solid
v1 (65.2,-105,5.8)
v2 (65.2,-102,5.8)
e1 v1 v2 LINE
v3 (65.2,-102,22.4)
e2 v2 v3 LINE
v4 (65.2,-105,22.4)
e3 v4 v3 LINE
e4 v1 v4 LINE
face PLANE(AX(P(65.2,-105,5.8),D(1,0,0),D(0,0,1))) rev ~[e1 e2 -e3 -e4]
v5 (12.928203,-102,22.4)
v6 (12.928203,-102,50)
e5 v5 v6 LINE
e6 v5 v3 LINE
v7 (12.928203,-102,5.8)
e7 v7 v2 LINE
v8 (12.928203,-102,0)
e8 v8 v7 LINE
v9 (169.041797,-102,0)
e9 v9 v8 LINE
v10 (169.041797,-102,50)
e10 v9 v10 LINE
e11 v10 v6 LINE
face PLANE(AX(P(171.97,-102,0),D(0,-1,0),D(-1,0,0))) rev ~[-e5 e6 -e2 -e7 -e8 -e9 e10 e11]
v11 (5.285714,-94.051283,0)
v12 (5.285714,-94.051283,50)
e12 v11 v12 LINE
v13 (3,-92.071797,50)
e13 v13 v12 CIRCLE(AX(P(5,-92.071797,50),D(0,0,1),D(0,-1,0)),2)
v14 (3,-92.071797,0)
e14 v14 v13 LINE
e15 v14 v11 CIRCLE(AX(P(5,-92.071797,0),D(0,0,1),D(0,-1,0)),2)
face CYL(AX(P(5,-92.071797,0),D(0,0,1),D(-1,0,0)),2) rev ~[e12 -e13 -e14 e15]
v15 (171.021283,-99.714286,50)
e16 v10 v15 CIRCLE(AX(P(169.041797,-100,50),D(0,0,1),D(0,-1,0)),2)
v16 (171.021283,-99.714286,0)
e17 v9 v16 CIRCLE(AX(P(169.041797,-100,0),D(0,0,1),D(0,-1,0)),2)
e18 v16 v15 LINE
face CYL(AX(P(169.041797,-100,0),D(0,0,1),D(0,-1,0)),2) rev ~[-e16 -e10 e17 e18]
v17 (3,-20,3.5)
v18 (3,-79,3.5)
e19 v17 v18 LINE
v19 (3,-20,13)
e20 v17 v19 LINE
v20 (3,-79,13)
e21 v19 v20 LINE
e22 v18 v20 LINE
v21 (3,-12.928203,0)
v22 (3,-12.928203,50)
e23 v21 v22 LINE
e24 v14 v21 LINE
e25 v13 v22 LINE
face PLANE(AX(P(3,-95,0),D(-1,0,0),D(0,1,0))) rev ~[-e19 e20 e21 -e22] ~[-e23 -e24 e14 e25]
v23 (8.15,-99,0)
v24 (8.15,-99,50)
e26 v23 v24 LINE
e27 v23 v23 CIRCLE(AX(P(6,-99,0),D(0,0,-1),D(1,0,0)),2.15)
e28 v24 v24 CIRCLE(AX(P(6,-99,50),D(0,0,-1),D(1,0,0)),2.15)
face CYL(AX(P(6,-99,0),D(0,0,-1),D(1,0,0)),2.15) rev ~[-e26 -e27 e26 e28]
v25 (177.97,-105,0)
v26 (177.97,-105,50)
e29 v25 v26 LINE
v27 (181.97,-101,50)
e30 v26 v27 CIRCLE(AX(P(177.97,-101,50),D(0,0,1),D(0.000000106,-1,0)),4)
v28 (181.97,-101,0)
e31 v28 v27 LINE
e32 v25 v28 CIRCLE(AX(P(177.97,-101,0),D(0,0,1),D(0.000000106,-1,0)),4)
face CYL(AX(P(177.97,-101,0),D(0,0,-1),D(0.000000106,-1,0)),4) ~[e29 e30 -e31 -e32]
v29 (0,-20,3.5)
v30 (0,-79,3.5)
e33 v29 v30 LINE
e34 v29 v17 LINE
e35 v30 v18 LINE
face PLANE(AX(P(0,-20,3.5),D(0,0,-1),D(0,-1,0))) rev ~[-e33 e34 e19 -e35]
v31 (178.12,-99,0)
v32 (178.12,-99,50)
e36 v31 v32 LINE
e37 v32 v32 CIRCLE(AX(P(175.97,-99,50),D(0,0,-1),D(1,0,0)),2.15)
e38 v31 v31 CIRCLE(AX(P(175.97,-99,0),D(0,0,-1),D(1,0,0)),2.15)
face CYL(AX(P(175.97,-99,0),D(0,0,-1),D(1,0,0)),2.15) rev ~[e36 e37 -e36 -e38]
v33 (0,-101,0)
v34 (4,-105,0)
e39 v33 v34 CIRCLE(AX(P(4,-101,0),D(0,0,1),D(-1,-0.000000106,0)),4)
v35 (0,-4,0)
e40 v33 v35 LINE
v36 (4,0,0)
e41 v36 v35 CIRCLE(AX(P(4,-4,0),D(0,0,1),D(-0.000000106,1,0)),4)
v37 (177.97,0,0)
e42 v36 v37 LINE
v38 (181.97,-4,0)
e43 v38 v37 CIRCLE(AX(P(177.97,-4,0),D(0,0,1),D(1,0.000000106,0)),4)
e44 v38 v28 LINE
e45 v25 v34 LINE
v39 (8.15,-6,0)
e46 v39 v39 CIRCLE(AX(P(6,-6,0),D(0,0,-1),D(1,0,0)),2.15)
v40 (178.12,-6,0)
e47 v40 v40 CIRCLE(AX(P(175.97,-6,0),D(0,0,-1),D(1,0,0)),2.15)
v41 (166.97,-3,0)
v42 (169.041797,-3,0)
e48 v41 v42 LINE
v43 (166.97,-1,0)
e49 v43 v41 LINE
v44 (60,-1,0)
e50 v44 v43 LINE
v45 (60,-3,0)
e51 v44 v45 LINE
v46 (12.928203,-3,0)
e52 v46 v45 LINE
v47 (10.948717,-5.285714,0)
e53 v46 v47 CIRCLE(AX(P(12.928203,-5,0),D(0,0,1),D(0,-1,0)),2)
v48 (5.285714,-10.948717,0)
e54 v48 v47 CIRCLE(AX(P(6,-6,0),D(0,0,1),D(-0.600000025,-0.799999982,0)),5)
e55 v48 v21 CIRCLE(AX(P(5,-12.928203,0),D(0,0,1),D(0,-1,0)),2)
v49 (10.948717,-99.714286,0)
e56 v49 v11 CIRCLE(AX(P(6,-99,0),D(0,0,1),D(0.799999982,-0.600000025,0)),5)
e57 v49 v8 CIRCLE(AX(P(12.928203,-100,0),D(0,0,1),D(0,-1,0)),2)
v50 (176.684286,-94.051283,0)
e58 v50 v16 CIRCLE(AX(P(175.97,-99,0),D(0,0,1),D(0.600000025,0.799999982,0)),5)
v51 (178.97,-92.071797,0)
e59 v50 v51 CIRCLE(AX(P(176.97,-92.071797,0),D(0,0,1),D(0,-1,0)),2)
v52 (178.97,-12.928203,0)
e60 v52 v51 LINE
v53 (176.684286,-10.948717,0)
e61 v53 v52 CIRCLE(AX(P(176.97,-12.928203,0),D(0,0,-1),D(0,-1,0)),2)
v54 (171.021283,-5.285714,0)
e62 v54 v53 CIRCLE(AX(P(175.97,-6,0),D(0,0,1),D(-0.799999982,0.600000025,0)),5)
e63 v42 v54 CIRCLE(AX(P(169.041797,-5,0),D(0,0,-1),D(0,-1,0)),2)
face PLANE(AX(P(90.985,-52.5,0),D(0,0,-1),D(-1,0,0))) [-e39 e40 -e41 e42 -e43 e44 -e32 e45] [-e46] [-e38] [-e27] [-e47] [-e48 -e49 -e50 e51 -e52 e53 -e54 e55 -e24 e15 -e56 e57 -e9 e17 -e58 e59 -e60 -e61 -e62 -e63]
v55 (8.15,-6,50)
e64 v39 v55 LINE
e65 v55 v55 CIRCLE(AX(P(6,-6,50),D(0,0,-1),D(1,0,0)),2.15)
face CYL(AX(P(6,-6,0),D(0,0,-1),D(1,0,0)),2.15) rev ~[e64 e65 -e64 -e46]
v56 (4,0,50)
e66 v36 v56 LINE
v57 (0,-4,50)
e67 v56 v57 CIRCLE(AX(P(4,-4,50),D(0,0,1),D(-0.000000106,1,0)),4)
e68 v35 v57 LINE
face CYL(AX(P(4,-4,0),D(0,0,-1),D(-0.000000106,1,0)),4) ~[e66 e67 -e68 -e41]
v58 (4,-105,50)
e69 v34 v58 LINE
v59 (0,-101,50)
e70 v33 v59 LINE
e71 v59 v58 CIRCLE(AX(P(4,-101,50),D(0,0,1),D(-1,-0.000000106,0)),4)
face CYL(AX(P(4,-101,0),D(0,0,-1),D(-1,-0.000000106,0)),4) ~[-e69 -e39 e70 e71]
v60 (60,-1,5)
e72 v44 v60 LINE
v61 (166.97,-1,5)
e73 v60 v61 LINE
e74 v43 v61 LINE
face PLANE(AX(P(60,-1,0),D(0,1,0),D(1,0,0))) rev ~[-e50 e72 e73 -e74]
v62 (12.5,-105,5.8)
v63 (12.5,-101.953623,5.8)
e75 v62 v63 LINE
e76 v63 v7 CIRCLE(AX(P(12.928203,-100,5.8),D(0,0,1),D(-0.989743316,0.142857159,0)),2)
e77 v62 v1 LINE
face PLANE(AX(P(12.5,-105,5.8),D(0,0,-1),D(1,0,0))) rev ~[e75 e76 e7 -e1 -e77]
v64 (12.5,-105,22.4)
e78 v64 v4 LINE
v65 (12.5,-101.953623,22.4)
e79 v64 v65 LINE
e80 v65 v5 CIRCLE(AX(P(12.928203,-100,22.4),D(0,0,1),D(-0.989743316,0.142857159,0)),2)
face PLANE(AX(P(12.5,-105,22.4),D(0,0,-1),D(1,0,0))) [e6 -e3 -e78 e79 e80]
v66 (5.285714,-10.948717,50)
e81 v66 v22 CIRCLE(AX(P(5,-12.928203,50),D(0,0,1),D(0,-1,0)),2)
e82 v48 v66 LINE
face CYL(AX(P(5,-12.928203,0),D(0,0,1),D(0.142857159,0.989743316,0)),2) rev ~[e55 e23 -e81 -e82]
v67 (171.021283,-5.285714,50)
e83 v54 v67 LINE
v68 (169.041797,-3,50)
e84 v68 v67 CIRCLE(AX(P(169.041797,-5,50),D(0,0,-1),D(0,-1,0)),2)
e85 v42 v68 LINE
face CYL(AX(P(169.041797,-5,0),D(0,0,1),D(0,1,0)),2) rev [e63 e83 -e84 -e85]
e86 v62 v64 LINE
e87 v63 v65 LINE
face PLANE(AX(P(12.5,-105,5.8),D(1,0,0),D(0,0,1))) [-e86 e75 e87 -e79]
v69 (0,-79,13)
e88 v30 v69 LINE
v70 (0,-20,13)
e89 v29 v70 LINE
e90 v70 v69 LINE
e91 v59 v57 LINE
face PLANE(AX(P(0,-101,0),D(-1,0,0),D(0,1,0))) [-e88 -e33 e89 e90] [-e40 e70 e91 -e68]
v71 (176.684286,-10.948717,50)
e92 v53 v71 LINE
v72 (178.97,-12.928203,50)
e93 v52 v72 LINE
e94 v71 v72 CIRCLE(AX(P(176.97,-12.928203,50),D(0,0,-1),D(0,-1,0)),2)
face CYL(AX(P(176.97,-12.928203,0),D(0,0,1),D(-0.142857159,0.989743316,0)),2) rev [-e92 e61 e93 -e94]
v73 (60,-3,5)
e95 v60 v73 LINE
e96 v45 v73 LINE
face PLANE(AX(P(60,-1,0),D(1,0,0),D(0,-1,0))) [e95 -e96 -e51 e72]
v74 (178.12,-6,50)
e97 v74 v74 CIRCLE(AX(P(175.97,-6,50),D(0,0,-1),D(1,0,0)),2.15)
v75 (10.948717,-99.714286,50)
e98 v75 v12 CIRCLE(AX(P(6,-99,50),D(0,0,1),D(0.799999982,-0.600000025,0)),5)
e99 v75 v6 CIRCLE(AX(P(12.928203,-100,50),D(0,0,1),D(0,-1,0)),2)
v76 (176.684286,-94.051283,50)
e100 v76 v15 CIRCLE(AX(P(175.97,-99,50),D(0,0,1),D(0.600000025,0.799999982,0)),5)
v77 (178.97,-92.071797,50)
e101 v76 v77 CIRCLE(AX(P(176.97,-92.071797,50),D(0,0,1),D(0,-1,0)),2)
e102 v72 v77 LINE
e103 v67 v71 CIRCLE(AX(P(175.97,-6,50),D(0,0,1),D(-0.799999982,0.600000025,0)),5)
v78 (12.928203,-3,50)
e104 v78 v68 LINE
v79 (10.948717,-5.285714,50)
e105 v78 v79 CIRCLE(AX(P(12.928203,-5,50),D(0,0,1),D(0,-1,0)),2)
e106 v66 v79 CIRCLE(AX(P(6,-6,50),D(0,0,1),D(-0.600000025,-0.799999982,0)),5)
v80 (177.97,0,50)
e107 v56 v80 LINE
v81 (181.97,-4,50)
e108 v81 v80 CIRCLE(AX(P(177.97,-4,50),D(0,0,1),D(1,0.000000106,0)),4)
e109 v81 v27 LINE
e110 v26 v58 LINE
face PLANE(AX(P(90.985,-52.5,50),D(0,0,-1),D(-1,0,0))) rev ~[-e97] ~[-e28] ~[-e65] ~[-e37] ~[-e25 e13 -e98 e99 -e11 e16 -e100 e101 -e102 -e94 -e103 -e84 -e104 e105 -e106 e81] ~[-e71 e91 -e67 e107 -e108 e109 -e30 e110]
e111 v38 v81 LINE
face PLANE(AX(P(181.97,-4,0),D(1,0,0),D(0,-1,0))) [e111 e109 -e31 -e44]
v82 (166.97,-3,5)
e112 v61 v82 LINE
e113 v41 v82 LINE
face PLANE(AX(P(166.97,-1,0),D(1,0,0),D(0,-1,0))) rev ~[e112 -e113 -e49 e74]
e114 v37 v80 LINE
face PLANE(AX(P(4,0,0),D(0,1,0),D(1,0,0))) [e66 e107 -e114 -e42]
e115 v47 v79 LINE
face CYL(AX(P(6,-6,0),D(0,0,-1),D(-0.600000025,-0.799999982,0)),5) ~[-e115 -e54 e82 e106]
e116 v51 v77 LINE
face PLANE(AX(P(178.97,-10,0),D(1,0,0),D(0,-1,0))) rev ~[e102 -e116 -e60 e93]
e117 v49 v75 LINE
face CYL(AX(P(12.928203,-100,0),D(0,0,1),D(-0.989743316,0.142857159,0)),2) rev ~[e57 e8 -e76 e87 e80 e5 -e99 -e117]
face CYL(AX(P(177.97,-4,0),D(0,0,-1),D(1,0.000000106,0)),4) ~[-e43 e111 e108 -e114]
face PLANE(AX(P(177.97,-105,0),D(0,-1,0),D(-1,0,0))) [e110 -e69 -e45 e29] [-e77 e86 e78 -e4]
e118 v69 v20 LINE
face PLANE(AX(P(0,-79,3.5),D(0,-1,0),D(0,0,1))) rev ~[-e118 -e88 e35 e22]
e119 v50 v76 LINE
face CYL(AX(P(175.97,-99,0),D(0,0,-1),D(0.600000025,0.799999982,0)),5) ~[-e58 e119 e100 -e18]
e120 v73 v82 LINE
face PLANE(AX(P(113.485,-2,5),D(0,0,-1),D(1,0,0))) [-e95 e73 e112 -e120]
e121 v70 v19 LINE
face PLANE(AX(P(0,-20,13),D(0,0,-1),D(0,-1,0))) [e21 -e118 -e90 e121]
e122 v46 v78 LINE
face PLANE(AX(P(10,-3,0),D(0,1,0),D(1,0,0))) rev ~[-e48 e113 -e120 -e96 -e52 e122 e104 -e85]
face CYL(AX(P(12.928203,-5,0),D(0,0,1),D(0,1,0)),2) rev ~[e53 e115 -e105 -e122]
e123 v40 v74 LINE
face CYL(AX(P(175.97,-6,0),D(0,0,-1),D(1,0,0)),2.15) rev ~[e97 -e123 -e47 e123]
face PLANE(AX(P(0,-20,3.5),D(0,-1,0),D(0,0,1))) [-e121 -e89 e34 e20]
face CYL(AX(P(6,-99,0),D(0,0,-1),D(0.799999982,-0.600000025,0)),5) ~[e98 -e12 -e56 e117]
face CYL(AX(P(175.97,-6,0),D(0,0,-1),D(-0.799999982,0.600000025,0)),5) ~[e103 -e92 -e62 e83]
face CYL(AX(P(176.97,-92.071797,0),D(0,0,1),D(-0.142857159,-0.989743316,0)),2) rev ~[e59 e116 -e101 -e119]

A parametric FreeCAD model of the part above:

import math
import FreeCAD as App
import Part
import Sketcher

V = App.Vector
Q = App.Units.Quantity


def edges_at(feature, points):
    """Names of the edges that pass closest to the given points."""
    edges = feature.Shape.Edges
    near = lambda p: min(range(len(edges)), key=lambda i: edges[i].distToShape(Part.Vertex(*p))[0])
    return sorted({f"Edge{near(p) + 1}" for p in points})

doc = App.newDocument("Part")
body = doc.addObject("PartDesign::Body", "Body")

sketch1 = body.newObject("Sketcher::SketchObject", "Sketch")
sketch1.AttachmentSupport = (doc.getObject("XY_Plane"), [""])
sketch1.MapMode = "FlatFace"
sketch1.addGeometry(Part.LineSegment(V(178, 0, 0), V(4, 0, 0)), False)
sketch1.addGeometry(Part.ArcOfCircle(Part.Circle(V(4, -4, 0), V(0, 0, 1), 4), math.radians(90), math.radians(180)), False)
sketch1.addGeometry(Part.LineSegment(V(0, -4, 0), V(0, -101, 0)), False)
sketch1.addGeometry(Part.ArcOfCircle(Part.Circle(V(4, -101, 0), V(0, 0, 1), 4), math.radians(-180), math.radians(-90)), False)
sketch1.addGeometry(Part.LineSegment(V(4, -105, 0), V(178, -105, 0)), False)
sketch1.addGeometry(Part.ArcOfCircle(Part.Circle(V(178, -101, 0), V(0, 0, 1), 4), math.radians(-90), math.radians(0)), False)
sketch1.addGeometry(Part.LineSegment(V(182, -101, 0), V(182, -4, 0)), False)
sketch1.addGeometry(Part.ArcOfCircle(Part.Circle(V(178, -4, 0), V(0, 0, 1), 4), math.radians(0), math.radians(90)), False)
sketch1.addGeometry(Part.LineSegment(V(10, -3, 0), V(172, -3, 0)), False)
sketch1.addGeometry(Part.ArcOfCircle(Part.Circle(V(176, -6, 0), V(0, 0, 1), 5), math.radians(143), math.radians(307)), False)
sketch1.addGeometry(Part.LineSegment(V(179, -10, 0), V(179, -95, 0)), False)
sketch1.addGeometry(Part.ArcOfCircle(Part.Circle(V(176, -99, 0), V(0, 0, 1), 5), math.radians(53), math.radians(217)), False)
sketch1.addGeometry(Part.LineSegment(V(172, -102, 0), V(10, -102, 0)), False)
sketch1.addGeometry(Part.ArcOfCircle(Part.Circle(V(6, -99, 0), V(0, 0, 1), 5), math.radians(-37), math.radians(127)), False)
sketch1.addGeometry(Part.LineSegment(V(3, -95, 0), V(3, -10, 0)), False)
sketch1.addGeometry(Part.ArcOfCircle(Part.Circle(V(6, -6, 0), V(0, 0, 1), 5), math.radians(-127), math.radians(37)), False)
sketch1.addConstraint(Sketcher.Constraint("Tangent", 0, 2, 1, 1))
sketch1.addConstraint(Sketcher.Constraint("Tangent", 1, 2, 2, 1))
sketch1.addConstraint(Sketcher.Constraint("Tangent", 2, 2, 3, 1))
sketch1.addConstraint(Sketcher.Constraint("Tangent", 3, 2, 4, 1))
sketch1.addConstraint(Sketcher.Constraint("Tangent", 4, 2, 5, 1))
sketch1.addConstraint(Sketcher.Constraint("Tangent", 5, 2, 6, 1))
sketch1.addConstraint(Sketcher.Constraint("Tangent", 6, 2, 7, 1))
sketch1.addConstraint(Sketcher.Constraint("Tangent", 7, 2, 0, 1))
sketch1.addConstraint(Sketcher.Constraint("Coincident", 8, 2, 9, 1))
sketch1.addConstraint(Sketcher.Constraint("Coincident", 9, 2, 10, 1))
sketch1.addConstraint(Sketcher.Constraint("Coincident", 10, 2, 11, 1))
sketch1.addConstraint(Sketcher.Constraint("Coincident", 11, 2, 12, 1))
sketch1.addConstraint(Sketcher.Constraint("Coincident", 12, 2, 13, 1))
sketch1.addConstraint(Sketcher.Constraint("Coincident", 13, 2, 14, 1))
sketch1.addConstraint(Sketcher.Constraint("Coincident", 14, 2, 15, 1))
sketch1.addConstraint(Sketcher.Constraint("Coincident", 15, 2, 8, 1))
sketch1.addConstraint(Sketcher.Constraint("Horizontal", 0))
sketch1.addConstraint(Sketcher.Constraint("Vertical", 2))
sketch1.addConstraint(Sketcher.Constraint("Horizontal", 4))
sketch1.addConstraint(Sketcher.Constraint("Vertical", 6))
sketch1.addConstraint(Sketcher.Constraint("Horizontal", 8))
sketch1.addConstraint(Sketcher.Constraint("Vertical", 10))
sketch1.addConstraint(Sketcher.Constraint("Horizontal", 12))
sketch1.addConstraint(Sketcher.Constraint("Vertical", 14))
sketch1.addConstraint(Sketcher.Constraint("Equal", 1, 3))
sketch1.addConstraint(Sketcher.Constraint("Equal", 3, 5))
sketch1.addConstraint(Sketcher.Constraint("Equal", 5, 7))
sketch1.addConstraint(Sketcher.Constraint("Equal", 9, 11))
sketch1.addConstraint(Sketcher.Constraint("Equal", 11, 13))
sketch1.addConstraint(Sketcher.Constraint("Equal", 13, 15))
sketch1.addConstraint(Sketcher.Constraint("PointOnObject", 0, 2, -1))
sketch1.addConstraint(Sketcher.Constraint("PointOnObject", 1, 2, -2))
sketch1.addConstraint(Sketcher.Constraint("Horizontal", 11, 3, 13, 3))
sketch1.addConstraint(Sketcher.Constraint("Horizontal", 9, 3, 15, 3))
sketch1.addConstraint(Sketcher.Constraint("Horizontal", 10, 2, 13, 2))
sketch1.addConstraint(Sketcher.Constraint("Horizontal", 9, 2, 14, 2))
sketch1.addConstraint(Sketcher.Constraint("Vertical", 9, 3, 11, 3))
sketch1.addConstraint(Sketcher.Constraint("Vertical", 8, 2, 11, 2))
sketch1.addConstraint(Sketcher.Constraint("Radius", 1, Q("4 mm")))
sketch1.addConstraint(Sketcher.Constraint("Radius", 9, Q("5 mm")))
sketch1.addConstraint(Sketcher.Constraint("DistanceY", 2, 2, 2, 1, Q("97 mm")))
sketch1.addConstraint(Sketcher.Constraint("DistanceY", 10, 2, 10, 1, Q("85 mm")))
sketch1.addConstraint(Sketcher.Constraint("DistanceY", 9, 3, -1, 1, Q("6 mm")))
sketch1.addConstraint(Sketcher.Constraint("DistanceY", 11, 3, -1, 1, Q("99 mm")))
sketch1.addConstraint(Sketcher.Constraint("DistanceX", -1, 1, 13, 3, Q("6 mm")))
sketch1.addConstraint(Sketcher.Constraint("DistanceY", 8, 2, -1, 1, Q("3 mm")))
sketch1.addConstraint(Sketcher.Constraint("DistanceX", 9, 3, 7, 3, Q("2 mm")))
sketch1.addConstraint(Sketcher.Constraint("DistanceX", 0, 2, 0, 1, Q("173.97 mm")))
pad1 = body.newObject("PartDesign::Pad", "Pad")
pad1.Profile = sketch1
pad1.Length = 50

sketch2 = body.newObject("Sketcher::SketchObject", "Sketch001")
sketch2.AttachmentSupport = (doc.getObject("XY_Plane"), [""])
sketch2.MapMode = "FlatFace"
sketch2.addGeometry(Part.LineSegment(V(60, -3, 0), V(60, -1, 0)), False)
sketch2.addGeometry(Part.LineSegment(V(60, -1, 0), V(167, -1, 0)), False)
sketch2.addGeometry(Part.LineSegment(V(167, -1, 0), V(167, -3, 0)), False)
sketch2.addGeometry(Part.LineSegment(V(167, -3, 0), V(60, -3, 0)), False)
sketch2.addConstraint(Sketcher.Constraint("Coincident", 0, 2, 1, 1))
sketch2.addConstraint(Sketcher.Constraint("Coincident", 1, 2, 2, 1))
sketch2.addConstraint(Sketcher.Constraint("Coincident", 2, 2, 3, 1))
sketch2.addConstraint(Sketcher.Constraint("Coincident", 3, 2, 0, 1))
sketch2.addConstraint(Sketcher.Constraint("Vertical", 0))
sketch2.addConstraint(Sketcher.Constraint("Horizontal", 1))
sketch2.addConstraint(Sketcher.Constraint("Vertical", 2))
sketch2.addConstraint(Sketcher.Constraint("Horizontal", 3))
sketch2.addConstraint(Sketcher.Constraint("DistanceY", 0, 1, 0, 2, Q("2 mm")))
sketch2.addConstraint(Sketcher.Constraint("DistanceX", -1, 1, 0, 2, Q("60 mm")))
sketch2.addConstraint(Sketcher.Constraint("DistanceY", 0, 2, -1, 1, Q("1 mm")))
sketch2.addConstraint(Sketcher.Constraint("DistanceX", 1, 1, 1, 2, Q("106.97 mm")))
pocket1 = body.newObject("PartDesign::Pocket", "Pocket")
pocket1.Profile = sketch2
pocket1.Length = 5
pocket1.Reversed = True

sketch3 = body.newObject("Sketcher::SketchObject", "Sketch002")
sketch3.AttachmentSupport = (doc.getObject("XY_Plane"), [""])
sketch3.MapMode = "FlatFace"
sketch3.addGeometry(Part.Circle(V(6, -99, 0), V(0, 0, 1), 2.1), False)
sketch3.addGeometry(Part.Circle(V(176, -99, 0), V(0, 0, 1), 2.1), False)
sketch3.addGeometry(Part.Circle(V(6, -6, 0), V(0, 0, 1), 2.1), False)
sketch3.addGeometry(Part.Circle(V(176, -6, 0), V(0, 0, 1), 2.1), False)
sketch3.addConstraint(Sketcher.Constraint("Equal", 0, 1))
sketch3.addConstraint(Sketcher.Constraint("Equal", 1, 2))
sketch3.addConstraint(Sketcher.Constraint("Equal", 2, 3))
sketch3.addConstraint(Sketcher.Constraint("Horizontal", 0, 3, 1, 3))
sketch3.addConstraint(Sketcher.Constraint("Horizontal", 2, 3, 3, 3))
sketch3.addConstraint(Sketcher.Constraint("Vertical", 0, 3, 2, 3))
sketch3.addConstraint(Sketcher.Constraint("Vertical", 1, 3, 3, 3))
sketch3.addConstraint(Sketcher.Constraint("Diameter", 0, Q("4.3 mm")))
sketch3.addConstraint(Sketcher.Constraint("DistanceX", -1, 1, 0, 3, Q("6 mm")))
sketch3.addConstraint(Sketcher.Constraint("DistanceY", 0, 3, -1, 1, Q("99 mm")))
sketch3.addConstraint(Sketcher.Constraint("DistanceY", 2, 3, -1, 1, Q("6 mm")))
sketch3.addConstraint(Sketcher.Constraint("DistanceX", -1, 1, 1, 3, Q("175.97 mm")))
pocket2 = body.newObject("PartDesign::Pocket", "Pocket001")
pocket2.Profile = sketch3
pocket2.Type = "ThroughAll"
pocket2.Reversed = True
doc.recompute()

fillet = body.newObject("PartDesign::Fillet", "Fillet")
fillet.Base = (pocket2, edges_at(pocket2, [
    (3, -95, 25),
    (10, -102, 25),
    (3, -10, 25),
    (10, -3, 25),
    (171.97, -102, 25),
    (178.97, -95, 25),
    (178.97, -10, 25),
    (171.97, -3, 25),
]))
fillet.Radius = 2

sketch4 = body.newObject("Sketcher::SketchObject", "Sketch003")
sketch4.AttachmentSupport = (doc.getObject("XZ_Plane"), [""])
sketch4.MapMode = "FlatFace"
sketch4.AttachmentOffset = App.Placement(V(0, 0, 105), App.Rotation())
sketch4.addGeometry(Part.LineSegment(V(12, 22, 0), V(12, 6, 0)), False)
sketch4.addGeometry(Part.LineSegment(V(12, 6, 0), V(65, 6, 0)), False)
sketch4.addGeometry(Part.LineSegment(V(65, 6, 0), V(65, 22, 0)), False)
sketch4.addGeometry(Part.LineSegment(V(65, 22, 0), V(12, 22, 0)), False)
sketch4.addConstraint(Sketcher.Constraint("Coincident", 0, 2, 1, 1))
sketch4.addConstraint(Sketcher.Constraint("Coincident", 1, 2, 2, 1))
sketch4.addConstraint(Sketcher.Constraint("Coincident", 2, 2, 3, 1))
sketch4.addConstraint(Sketcher.Constraint("Coincident", 3, 2, 0, 1))
sketch4.addConstraint(Sketcher.Constraint("Vertical", 0))
sketch4.addConstraint(Sketcher.Constraint("Horizontal", 1))
sketch4.addConstraint(Sketcher.Constraint("Vertical", 2))
sketch4.addConstraint(Sketcher.Constraint("Horizontal", 3))
sketch4.addConstraint(Sketcher.Constraint("DistanceX", 1, 1, 1, 2, Q("52.7 mm")))
sketch4.addConstraint(Sketcher.Constraint("DistanceY", 0, 2, 0, 1, Q("16.6 mm")))
sketch4.addConstraint(Sketcher.Constraint("DistanceX", -1, 1, 0, 2, Q("12.5 mm")))
sketch4.addConstraint(Sketcher.Constraint("DistanceY", -1, 1, 0, 2, Q("5.8 mm")))
pocket3 = body.newObject("PartDesign::Pocket", "Pocket002")
pocket3.Profile = sketch4
pocket3.Length = 5

sketch5 = body.newObject("Sketcher::SketchObject", "Sketch004")
sketch5.AttachmentSupport = (doc.getObject("YZ_Plane"), [""])
sketch5.MapMode = "FlatFace"
sketch5.addGeometry(Part.LineSegment(V(-20, 13, 0), V(-20, 4, 0)), False)
sketch5.addGeometry(Part.LineSegment(V(-20, 4, 0), V(-79, 4, 0)), False)
sketch5.addGeometry(Part.LineSegment(V(-79, 4, 0), V(-79, 13, 0)), False)
sketch5.addGeometry(Part.LineSegment(V(-79, 13, 0), V(-20, 13, 0)), False)
sketch5.addConstraint(Sketcher.Constraint("Coincident", 0, 2, 1, 1))
sketch5.addConstraint(Sketcher.Constraint("Coincident", 1, 2, 2, 1))
sketch5.addConstraint(Sketcher.Constraint("Coincident", 2, 2, 3, 1))
sketch5.addConstraint(Sketcher.Constraint("Coincident", 3, 2, 0, 1))
sketch5.addConstraint(Sketcher.Constraint("Vertical", 0))
sketch5.addConstraint(Sketcher.Constraint("Horizontal", 1))
sketch5.addConstraint(Sketcher.Constraint("Vertical", 2))
sketch5.addConstraint(Sketcher.Constraint("Horizontal", 3))
sketch5.addConstraint(Sketcher.Constraint("DistanceX", 1, 2, 1, 1, Q("59 mm")))
sketch5.addConstraint(Sketcher.Constraint("DistanceY", 0, 2, 0, 1, Q("9.5 mm")))
sketch5.addConstraint(Sketcher.Constraint("DistanceX", 0, 2, -1, 1, Q("20 mm")))
sketch5.addConstraint(Sketcher.Constraint("DistanceY", -1, 1, 2, 2, Q("13 mm")))
pocket4 = body.newObject("PartDesign::Pocket", "Pocket003")
pocket4.Profile = sketch5
pocket4.Length = 5
pocket4.Reversed = True

doc.recompute()
